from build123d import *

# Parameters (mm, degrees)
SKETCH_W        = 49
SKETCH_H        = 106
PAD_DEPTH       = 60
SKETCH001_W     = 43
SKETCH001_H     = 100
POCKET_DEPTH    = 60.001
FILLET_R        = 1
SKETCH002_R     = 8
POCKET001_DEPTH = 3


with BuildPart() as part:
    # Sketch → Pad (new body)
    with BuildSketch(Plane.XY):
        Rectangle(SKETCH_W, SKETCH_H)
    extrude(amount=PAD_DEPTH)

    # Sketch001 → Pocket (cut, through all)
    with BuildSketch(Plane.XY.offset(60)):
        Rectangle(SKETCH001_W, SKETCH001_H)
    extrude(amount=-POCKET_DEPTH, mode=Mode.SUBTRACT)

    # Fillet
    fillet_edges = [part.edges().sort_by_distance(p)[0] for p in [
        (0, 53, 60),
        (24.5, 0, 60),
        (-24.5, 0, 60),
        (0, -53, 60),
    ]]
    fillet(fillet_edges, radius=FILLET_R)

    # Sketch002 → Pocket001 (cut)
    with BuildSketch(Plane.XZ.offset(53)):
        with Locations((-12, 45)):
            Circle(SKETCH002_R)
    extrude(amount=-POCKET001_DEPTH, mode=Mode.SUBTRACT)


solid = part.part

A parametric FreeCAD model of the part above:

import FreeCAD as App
import Part
import Sketcher
from FreeCAD import Vector


def edges_at(feature, points):
    """Names of the edges that pass closest to the given points."""
    edges = feature.Shape.Edges
    near = lambda p: min(range(len(edges)), key=lambda i: edges[i].distToShape(Part.Vertex(*p))[0])
    return sorted({f"Edge{near(p) + 1}" for p in points})

doc = App.newDocument("Part")
body = doc.addObject("PartDesign::Body", "Body")

# Sketch on XY plane
sketch1 = body.newObject("Sketcher::SketchObject", "Sketch")
sketch1.AttachmentSupport = (doc.getObject("XY_Plane"), [""])
sketch1.MapMode = "FlatFace"
sketch1.addGeometry([
    Part.LineSegment(Vector(-24, 53, 0), Vector(-24, -53, 0)),
    Part.LineSegment(Vector(-24, -53, 0), Vector(24, -53, 0)),
    Part.LineSegment(Vector(24, -53, 0), Vector(24, 53, 0)),
    Part.LineSegment(Vector(24, 53, 0), Vector(-24, 53, 0)),
], False)
sketch1.addConstraint([
    Sketcher.Constraint("Coincident", 0, 2, 1, 1),
    Sketcher.Constraint("Coincident", 1, 2, 2, 1),
    Sketcher.Constraint("Coincident", 2, 2, 3, 1),
    Sketcher.Constraint("Coincident", 3, 2, 0, 1),
    Sketcher.Constraint("Vertical", 0),
    Sketcher.Constraint("Horizontal", 1),
    Sketcher.Constraint("Vertical", 2),
    Sketcher.Constraint("Horizontal", 3),
    Sketcher.Constraint("Symmetric", 0, 2, 2, 2, -1, 1),
    Sketcher.Constraint("DistanceX", 1, 1, 1, 2, 49.0),
    Sketcher.Constraint("DistanceY", 0, 2, 0, 1, 106.0),
])
pad1 = body.newObject("PartDesign::Pad", "Pad")
pad1.Profile = sketch1
pad1.Length = 60

# Sketch on XY plane
sketch2 = body.newObject("Sketcher::SketchObject", "Sketch001")
sketch2.AttachmentSupport = (doc.getObject("XY_Plane"), [""])
sketch2.MapMode = "FlatFace"
sketch2.AttachmentOffset = App.Placement(Vector(0, 0, 60), App.Rotation())
sketch2.addGeometry([
    Part.LineSegment(Vector(-22, 50, 0), Vector(-22, -50, 0)),
    Part.LineSegment(Vector(-22, -50, 0), Vector(22, -50, 0)),
    Part.LineSegment(Vector(22, -50, 0), Vector(22, 50, 0)),
    Part.LineSegment(Vector(22, 50, 0), Vector(-22, 50, 0)),
], False)
sketch2.addConstraint([
    Sketcher.Constraint("Coincident", 0, 2, 1, 1),
    Sketcher.Constraint("Coincident", 1, 2, 2, 1),
    Sketcher.Constraint("Coincident", 2, 2, 3, 1),
    Sketcher.Constraint("Coincident", 3, 2, 0, 1),
    Sketcher.Constraint("Vertical", 0),
    Sketcher.Constraint("Horizontal", 1),
    Sketcher.Constraint("Vertical", 2),
    Sketcher.Constraint("Horizontal", 3),
    Sketcher.Constraint("Symmetric", 0, 2, 2, 2, -1, 1),
    Sketcher.Constraint("DistanceX", 1, 1, 1, 2, 43.0),
    Sketcher.Constraint("DistanceY", 0, 2, 0, 1, 100.0),
])
pocket1 = body.newObject("PartDesign::Pocket", "Pocket")
pocket1.Profile = sketch2
pocket1.Type = "ThroughAll"
doc.recompute()

fillet = body.newObject("PartDesign::Fillet", "Fillet")
fillet.Base = (pocket1, edges_at(pocket1, [
    (0, 53, 60),
    (24.5, 0, 60),
    (-24.5, 0, 60),
    (0, -53, 60),
]))
fillet.Radius = 1

# Sketch on XZ plane
sketch3 = body.newObject("Sketcher::SketchObject", "Sketch002")
sketch3.AttachmentSupport = (doc.getObject("XZ_Plane"), [""])
sketch3.MapMode = "FlatFace"
sketch3.AttachmentOffset = App.Placement(Vector(0, 0, 53), App.Rotation())
sketch3.addGeometry(Part.Circle(Vector(-12, 45, 0), Vector(0, 0, 1), 8), False)
sketch3.addConstraint([
    Sketcher.Constraint("Diameter", 0, 16.0),
    Sketcher.Constraint("DistanceX", 0, 3, -1, 1, 12.0),
    Sketcher.Constraint("DistanceY", -1, 1, 0, 3, 45.0),
])
pocket2 = body.newObject("PartDesign::Pocket", "Pocket001")
pocket2.Profile = sketch3
pocket2.Length = 3

doc.recompute()
